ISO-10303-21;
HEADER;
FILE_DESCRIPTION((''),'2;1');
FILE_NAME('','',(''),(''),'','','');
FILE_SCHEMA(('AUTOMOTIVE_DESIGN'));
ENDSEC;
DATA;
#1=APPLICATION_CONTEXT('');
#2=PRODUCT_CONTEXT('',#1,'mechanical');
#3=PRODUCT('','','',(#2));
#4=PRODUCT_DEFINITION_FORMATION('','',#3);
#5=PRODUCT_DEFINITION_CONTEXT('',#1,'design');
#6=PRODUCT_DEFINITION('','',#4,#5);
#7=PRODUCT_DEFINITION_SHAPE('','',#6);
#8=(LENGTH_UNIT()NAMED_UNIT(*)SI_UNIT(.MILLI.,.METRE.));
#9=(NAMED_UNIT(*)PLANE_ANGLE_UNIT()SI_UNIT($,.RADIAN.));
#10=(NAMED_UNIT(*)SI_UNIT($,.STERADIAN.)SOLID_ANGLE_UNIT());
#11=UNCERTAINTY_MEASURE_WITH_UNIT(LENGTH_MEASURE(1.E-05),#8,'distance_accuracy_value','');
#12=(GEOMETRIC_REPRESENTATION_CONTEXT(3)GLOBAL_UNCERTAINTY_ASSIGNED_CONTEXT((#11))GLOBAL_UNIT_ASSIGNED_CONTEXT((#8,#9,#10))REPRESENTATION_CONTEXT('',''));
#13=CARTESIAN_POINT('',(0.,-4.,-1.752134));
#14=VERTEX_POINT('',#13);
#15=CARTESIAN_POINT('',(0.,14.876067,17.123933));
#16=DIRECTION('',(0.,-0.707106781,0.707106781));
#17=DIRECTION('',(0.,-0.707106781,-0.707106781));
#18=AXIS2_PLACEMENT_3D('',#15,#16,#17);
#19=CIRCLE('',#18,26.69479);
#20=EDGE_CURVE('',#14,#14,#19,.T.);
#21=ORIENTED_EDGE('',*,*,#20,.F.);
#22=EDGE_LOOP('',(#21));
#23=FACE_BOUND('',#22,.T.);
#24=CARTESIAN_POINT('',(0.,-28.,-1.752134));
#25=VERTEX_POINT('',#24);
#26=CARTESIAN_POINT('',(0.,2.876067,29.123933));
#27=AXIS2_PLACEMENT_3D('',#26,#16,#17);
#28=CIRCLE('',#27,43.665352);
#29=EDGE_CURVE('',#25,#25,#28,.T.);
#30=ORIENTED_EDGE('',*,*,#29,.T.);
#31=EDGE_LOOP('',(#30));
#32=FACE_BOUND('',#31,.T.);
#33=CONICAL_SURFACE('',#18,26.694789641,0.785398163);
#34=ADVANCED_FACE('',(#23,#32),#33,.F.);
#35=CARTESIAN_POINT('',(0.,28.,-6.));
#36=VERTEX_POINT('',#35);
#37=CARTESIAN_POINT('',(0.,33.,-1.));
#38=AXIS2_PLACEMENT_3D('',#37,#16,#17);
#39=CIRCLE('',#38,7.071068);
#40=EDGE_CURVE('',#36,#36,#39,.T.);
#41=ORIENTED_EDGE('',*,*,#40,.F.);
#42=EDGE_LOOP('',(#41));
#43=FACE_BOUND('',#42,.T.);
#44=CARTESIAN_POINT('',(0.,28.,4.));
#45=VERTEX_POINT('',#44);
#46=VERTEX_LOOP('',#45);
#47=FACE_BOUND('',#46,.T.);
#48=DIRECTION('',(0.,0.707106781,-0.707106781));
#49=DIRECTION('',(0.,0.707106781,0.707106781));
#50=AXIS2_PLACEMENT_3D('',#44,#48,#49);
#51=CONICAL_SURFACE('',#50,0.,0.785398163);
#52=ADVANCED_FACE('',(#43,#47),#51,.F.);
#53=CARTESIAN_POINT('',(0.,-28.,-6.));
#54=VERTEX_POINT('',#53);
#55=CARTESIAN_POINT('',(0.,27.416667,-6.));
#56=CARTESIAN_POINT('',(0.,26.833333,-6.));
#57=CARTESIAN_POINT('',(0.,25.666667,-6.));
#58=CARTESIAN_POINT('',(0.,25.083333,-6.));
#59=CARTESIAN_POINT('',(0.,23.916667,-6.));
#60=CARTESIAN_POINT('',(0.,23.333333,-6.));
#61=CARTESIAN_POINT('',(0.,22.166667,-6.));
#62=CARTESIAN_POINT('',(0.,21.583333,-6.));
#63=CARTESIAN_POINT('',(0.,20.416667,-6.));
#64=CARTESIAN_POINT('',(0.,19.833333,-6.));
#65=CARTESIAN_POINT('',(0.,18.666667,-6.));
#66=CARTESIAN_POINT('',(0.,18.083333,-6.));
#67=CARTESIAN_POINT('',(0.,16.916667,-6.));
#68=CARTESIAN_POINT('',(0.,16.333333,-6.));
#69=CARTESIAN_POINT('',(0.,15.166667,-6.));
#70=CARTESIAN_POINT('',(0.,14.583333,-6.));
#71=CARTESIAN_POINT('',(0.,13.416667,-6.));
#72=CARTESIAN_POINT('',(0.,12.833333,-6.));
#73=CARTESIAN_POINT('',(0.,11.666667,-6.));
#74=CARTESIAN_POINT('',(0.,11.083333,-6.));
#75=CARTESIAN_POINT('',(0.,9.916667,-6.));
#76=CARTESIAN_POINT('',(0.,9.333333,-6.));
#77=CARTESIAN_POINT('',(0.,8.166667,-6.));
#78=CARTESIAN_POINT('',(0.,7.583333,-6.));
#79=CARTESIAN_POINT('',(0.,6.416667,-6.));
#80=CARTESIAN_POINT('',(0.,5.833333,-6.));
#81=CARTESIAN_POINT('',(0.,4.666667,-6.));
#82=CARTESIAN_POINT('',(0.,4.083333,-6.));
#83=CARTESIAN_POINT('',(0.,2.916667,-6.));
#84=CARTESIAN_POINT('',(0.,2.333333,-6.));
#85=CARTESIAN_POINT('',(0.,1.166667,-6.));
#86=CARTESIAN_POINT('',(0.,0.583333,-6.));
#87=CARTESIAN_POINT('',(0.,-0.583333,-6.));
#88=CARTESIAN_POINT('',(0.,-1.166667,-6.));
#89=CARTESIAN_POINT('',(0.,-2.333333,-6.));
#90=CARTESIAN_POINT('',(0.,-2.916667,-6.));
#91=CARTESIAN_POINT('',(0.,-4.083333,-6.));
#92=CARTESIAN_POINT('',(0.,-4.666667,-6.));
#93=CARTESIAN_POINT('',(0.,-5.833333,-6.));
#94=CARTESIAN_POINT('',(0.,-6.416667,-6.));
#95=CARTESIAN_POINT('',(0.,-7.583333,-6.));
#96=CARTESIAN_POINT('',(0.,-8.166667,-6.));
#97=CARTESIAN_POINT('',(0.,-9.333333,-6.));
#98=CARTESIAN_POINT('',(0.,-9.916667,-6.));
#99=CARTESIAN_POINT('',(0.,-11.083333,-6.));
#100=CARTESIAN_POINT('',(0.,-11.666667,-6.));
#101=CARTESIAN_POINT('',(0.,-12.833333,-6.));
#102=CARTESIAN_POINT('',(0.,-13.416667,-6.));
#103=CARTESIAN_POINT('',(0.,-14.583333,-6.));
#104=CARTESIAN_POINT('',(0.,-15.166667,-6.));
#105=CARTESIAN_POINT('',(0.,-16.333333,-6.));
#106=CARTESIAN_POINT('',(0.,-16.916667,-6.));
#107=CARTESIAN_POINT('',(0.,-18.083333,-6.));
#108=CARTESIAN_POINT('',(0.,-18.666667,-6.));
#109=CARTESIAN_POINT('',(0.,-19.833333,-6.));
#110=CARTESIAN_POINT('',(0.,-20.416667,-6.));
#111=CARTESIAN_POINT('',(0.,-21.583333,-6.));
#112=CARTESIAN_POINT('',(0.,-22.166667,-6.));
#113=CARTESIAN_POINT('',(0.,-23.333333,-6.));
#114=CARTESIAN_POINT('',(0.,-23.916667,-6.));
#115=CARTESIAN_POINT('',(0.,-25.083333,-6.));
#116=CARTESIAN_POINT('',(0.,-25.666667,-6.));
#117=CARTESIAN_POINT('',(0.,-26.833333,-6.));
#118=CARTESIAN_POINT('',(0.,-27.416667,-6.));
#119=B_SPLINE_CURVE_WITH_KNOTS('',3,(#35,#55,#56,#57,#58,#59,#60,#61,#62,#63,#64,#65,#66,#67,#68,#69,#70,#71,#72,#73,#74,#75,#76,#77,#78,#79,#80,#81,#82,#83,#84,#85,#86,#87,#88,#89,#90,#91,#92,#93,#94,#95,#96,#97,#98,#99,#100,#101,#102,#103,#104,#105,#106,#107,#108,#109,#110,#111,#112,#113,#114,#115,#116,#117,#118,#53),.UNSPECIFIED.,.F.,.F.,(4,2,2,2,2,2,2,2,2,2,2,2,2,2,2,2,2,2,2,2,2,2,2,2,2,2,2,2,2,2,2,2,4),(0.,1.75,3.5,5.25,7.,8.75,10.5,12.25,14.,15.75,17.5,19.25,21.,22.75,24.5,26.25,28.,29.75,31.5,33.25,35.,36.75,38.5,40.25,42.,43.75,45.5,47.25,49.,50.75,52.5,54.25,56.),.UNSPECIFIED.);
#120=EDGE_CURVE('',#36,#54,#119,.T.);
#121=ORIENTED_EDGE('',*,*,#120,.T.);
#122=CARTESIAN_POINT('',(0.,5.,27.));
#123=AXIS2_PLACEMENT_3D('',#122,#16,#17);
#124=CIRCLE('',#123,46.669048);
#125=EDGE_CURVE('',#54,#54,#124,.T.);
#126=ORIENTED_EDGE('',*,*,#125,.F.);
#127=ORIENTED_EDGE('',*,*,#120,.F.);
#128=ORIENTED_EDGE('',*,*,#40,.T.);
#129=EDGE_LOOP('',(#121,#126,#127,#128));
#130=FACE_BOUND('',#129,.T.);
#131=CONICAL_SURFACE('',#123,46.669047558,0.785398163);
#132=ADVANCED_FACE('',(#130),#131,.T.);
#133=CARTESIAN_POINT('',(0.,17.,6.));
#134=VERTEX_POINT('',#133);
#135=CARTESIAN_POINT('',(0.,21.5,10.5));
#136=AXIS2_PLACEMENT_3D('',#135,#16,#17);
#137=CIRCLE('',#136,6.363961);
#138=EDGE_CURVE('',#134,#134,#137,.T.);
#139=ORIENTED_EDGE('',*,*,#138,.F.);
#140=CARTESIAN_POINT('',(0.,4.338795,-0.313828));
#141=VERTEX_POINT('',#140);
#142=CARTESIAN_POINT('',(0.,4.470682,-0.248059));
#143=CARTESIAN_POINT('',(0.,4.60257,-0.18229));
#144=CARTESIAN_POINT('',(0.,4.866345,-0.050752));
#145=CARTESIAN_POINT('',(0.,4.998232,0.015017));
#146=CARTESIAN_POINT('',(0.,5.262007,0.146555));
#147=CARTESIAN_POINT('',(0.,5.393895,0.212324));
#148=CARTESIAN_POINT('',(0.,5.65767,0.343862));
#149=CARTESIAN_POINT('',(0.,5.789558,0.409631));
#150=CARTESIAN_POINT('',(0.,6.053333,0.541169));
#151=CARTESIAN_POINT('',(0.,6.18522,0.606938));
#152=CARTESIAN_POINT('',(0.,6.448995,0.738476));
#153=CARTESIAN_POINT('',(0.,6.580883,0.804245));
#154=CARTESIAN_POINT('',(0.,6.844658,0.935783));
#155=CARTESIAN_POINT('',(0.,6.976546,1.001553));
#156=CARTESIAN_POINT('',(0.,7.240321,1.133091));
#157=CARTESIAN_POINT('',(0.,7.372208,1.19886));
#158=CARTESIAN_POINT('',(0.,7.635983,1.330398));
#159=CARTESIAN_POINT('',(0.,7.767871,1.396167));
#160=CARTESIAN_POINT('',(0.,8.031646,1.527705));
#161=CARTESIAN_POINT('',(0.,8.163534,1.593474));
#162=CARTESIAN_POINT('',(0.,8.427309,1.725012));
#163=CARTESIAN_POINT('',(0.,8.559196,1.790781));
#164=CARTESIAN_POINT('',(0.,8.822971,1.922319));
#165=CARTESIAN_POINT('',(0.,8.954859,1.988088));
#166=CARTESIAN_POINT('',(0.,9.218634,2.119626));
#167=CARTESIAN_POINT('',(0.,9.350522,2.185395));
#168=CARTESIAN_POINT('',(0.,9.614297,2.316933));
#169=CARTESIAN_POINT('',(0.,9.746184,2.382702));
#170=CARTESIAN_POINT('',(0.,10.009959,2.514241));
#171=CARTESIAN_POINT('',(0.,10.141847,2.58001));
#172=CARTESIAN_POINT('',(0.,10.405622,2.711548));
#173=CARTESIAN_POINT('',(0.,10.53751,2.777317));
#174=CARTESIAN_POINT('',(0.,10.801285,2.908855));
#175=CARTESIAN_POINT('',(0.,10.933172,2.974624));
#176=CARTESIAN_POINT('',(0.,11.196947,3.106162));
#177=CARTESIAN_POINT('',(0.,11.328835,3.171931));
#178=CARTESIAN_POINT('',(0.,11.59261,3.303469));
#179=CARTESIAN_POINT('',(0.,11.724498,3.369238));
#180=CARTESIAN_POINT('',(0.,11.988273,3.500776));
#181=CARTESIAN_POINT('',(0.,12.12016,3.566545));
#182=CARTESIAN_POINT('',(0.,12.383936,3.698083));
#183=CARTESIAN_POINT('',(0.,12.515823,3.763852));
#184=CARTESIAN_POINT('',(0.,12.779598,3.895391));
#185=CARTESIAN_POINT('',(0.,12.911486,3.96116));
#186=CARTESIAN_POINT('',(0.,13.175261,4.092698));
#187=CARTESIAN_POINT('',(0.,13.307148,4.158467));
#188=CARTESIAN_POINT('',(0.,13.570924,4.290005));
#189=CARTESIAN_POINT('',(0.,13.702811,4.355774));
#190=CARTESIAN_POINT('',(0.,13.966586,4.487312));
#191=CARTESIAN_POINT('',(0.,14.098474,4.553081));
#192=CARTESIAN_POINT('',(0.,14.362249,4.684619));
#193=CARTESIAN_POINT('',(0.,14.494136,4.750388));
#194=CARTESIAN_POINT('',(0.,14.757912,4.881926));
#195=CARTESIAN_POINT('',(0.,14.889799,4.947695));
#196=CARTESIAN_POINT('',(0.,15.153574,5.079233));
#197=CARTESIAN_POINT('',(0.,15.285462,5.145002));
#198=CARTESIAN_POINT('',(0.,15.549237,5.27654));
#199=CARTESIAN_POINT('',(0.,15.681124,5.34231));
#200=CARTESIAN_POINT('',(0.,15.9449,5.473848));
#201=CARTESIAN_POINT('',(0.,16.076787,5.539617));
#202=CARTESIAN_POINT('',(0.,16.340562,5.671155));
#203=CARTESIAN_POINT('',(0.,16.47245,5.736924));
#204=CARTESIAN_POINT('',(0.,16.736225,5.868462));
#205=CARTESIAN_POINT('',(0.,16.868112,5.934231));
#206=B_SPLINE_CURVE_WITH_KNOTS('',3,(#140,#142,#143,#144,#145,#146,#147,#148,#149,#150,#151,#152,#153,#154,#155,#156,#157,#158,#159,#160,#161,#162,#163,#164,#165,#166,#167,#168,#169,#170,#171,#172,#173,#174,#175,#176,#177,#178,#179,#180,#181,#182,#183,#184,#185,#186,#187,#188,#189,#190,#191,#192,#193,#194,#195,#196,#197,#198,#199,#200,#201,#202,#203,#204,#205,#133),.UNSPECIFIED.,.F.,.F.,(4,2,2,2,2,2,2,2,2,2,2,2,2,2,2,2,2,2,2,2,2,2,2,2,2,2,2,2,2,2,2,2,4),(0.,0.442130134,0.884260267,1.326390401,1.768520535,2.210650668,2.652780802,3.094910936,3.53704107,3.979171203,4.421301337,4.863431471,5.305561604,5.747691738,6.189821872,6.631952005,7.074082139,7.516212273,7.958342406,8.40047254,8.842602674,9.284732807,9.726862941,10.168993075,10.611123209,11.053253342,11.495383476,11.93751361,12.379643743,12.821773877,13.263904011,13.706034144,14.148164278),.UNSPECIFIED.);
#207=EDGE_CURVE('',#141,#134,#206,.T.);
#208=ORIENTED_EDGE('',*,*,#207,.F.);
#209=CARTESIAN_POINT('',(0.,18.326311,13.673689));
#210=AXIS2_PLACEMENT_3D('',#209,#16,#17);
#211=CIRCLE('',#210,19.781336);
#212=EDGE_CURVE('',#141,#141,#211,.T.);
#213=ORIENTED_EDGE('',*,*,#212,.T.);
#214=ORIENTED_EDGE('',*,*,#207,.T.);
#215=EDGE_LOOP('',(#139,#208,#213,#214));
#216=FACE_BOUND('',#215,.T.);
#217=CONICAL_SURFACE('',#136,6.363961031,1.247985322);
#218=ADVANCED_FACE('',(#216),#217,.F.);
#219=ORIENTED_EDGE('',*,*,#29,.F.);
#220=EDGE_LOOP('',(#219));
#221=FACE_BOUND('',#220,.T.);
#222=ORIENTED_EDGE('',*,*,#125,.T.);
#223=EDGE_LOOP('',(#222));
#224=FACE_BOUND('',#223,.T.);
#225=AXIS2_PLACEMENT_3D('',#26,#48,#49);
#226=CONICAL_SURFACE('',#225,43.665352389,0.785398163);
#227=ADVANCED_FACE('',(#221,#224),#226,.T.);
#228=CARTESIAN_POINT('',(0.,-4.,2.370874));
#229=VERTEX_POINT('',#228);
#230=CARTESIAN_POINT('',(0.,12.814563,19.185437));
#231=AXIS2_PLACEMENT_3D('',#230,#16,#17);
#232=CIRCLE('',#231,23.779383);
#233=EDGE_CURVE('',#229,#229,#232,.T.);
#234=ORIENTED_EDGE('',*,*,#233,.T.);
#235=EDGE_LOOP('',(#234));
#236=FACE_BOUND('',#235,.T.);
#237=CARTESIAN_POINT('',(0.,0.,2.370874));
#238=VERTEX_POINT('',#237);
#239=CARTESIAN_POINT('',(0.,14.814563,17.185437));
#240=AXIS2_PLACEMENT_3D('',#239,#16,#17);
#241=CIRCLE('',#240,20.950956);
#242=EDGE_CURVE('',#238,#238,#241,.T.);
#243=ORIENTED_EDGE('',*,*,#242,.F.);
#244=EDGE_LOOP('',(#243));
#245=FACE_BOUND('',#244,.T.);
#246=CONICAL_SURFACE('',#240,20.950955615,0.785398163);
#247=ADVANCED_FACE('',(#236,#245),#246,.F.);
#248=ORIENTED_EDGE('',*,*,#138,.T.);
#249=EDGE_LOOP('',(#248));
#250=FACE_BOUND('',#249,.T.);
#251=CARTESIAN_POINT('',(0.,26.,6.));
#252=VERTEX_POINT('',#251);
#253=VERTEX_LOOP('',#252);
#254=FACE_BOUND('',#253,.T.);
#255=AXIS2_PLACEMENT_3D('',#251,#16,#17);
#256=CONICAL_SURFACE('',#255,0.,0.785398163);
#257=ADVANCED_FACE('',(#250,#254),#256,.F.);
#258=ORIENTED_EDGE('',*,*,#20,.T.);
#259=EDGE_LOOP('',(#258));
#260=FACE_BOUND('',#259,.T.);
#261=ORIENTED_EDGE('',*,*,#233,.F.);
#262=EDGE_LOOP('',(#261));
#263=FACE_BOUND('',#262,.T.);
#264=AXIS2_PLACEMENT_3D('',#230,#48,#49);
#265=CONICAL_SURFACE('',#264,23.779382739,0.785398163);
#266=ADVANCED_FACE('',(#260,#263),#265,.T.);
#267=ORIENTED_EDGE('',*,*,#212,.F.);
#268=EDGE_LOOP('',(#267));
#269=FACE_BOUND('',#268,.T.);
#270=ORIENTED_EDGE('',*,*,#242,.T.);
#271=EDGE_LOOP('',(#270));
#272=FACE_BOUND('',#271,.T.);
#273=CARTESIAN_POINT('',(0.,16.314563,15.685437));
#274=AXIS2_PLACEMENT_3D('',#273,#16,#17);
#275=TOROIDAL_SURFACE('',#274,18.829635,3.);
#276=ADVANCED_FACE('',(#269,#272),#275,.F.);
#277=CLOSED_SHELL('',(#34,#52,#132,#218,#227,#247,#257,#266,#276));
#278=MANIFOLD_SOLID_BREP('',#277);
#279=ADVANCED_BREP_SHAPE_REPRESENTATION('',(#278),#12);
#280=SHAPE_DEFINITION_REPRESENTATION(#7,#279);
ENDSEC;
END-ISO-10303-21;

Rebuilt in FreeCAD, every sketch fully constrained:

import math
import FreeCAD as App
import Part
import Sketcher

V = App.Vector
Q = App.Units.Quantity

doc = App.newDocument("Part")
body = doc.addObject("PartDesign::Body", "Body")

# Sketch on YZ plane
sketch1 = body.newObject("Sketcher::SketchObject", "Sketch")
sketch1.AttachmentSupport = (doc.getObject("YZ_Plane"), [""])
sketch1.MapMode = "FlatFace"
sketch1.addGeometry(Part.LineSegment(V(28, -6, 0), V(28, 4, 0)), False)
sketch1.addGeometry(Part.LineSegment(V(28, 4, 0), V(26, 6, 0)), False)
sketch1.addGeometry(Part.LineSegment(V(26, 6, 0), V(17, 6, 0)), False)
sketch1.addGeometry(Part.LineSegment(V(17, 6, 0), V(4.3, -0.3, 0)), False)
sketch1.addGeometry(Part.ArcOfCircle(Part.Circle(V(3, 2.4, 0), V(0, 0, 1), 3), math.radians(180), math.radians(297)), False)
sketch1.addGeometry(Part.LineSegment(V(0, 2.4, 0), V(-4, 2.4, 0)), False)
sketch1.addGeometry(Part.LineSegment(V(-4, 2.4, 0), V(-4, -1.8, 0)), False)
sketch1.addGeometry(Part.LineSegment(V(-4, -1.8, 0), V(-28, -1.8, 0)), False)
sketch1.addGeometry(Part.LineSegment(V(-28, -1.8, 0), V(-28, -6, 0)), False)
sketch1.addGeometry(Part.LineSegment(V(-28, -6, 0), V(28, -6, 0)), False)
sketch1.addGeometry(Part.LineSegment(V(33, -1, 0), V(2.9, 29.1, 0)), True)  # axis
sketch1.addConstraint(Sketcher.Constraint("Coincident", 0, 2, 1, 1))
sketch1.addConstraint(Sketcher.Constraint("Coincident", 1, 2, 2, 1))
sketch1.addConstraint(Sketcher.Constraint("Coincident", 2, 2, 3, 1))
sketch1.addConstraint(Sketcher.Constraint("Tangent", 3, 2, 4, 2))
sketch1.addConstraint(Sketcher.Constraint("Coincident", 4, 1, 5, 1))
sketch1.addConstraint(Sketcher.Constraint("Coincident", 5, 2, 6, 1))
sketch1.addConstraint(Sketcher.Constraint("Coincident", 6, 2, 7, 1))
sketch1.addConstraint(Sketcher.Constraint("Coincident", 7, 2, 8, 1))
sketch1.addConstraint(Sketcher.Constraint("Coincident", 8, 2, 9, 1))
sketch1.addConstraint(Sketcher.Constraint("Coincident", 9, 2, 0, 1))
sketch1.addConstraint(Sketcher.Constraint("Vertical", 0))
sketch1.addConstraint(Sketcher.Constraint("Horizontal", 2))
sketch1.addConstraint(Sketcher.Constraint("Horizontal", 5))
sketch1.addConstraint(Sketcher.Constraint("Vertical", 6))
sketch1.addConstraint(Sketcher.Constraint("Horizontal", 7))
sketch1.addConstraint(Sketcher.Constraint("Vertical", 8))
sketch1.addConstraint(Sketcher.Constraint("Horizontal", 9))
sketch1.addConstraint(Sketcher.Constraint("PointOnObject", 4, 1, -2))
sketch1.addConstraint(Sketcher.Constraint("Parallel", 1, 10))
sketch1.addConstraint(Sketcher.Constraint("Radius", 4, 3.0))
sketch1.addConstraint(Sketcher.Constraint("DistanceX", 2, 2, 2, 1, 9.0))
sketch1.addConstraint(Sketcher.Constraint("DistanceX", 5, 2, 5, 1, 4.0))
sketch1.addConstraint(Sketcher.Constraint("DistanceX", 7, 2, 7, 1, 24.0))
sketch1.addConstraint(Sketcher.Constraint("DistanceX", 9, 1, 9, 2, 56.0))
sketch1.addConstraint(Sketcher.Constraint("DistanceY", 0, 1, 0, 2, 10.0))
sketch1.addConstraint(Sketcher.Constraint("Angle", 1, Q("135 deg")))
sketch1.addConstraint(Sketcher.Constraint("DistanceY", -1, 1, 0, 2, 4.0))
sketch1.addConstraint(Sketcher.Constraint("DistanceX", -1, 1, 1, 2, 26.0))
sketch1.addConstraint(Sketcher.Constraint("DistanceX", -1, 1, 10, 1, 33.0))
sketch1.addConstraint(Sketcher.Constraint("DistanceY", 10, 1, -1, 1, 1.0))
sketch1.addConstraint(Sketcher.Constraint("DistanceY", 6, 2, 6, 1, 4.123008))
sketch1.addConstraint(Sketcher.Constraint("DistanceY", 8, 2, 8, 1, 4.247866))
sketch1.addConstraint(Sketcher.Constraint("DistanceY", 3, 2, -1, 1, 0.313828))
sketch1.addConstraint(Sketcher.Constraint("DistanceY", 4, 3, 10, 2, 26.753059))
revolution = body.newObject("PartDesign::Revolution", "Revolution")
revolution.Profile = sketch1
revolution.ReferenceAxis = (sketch1, ["Axis0"])
revolution.Angle = 360

doc.recompute()
